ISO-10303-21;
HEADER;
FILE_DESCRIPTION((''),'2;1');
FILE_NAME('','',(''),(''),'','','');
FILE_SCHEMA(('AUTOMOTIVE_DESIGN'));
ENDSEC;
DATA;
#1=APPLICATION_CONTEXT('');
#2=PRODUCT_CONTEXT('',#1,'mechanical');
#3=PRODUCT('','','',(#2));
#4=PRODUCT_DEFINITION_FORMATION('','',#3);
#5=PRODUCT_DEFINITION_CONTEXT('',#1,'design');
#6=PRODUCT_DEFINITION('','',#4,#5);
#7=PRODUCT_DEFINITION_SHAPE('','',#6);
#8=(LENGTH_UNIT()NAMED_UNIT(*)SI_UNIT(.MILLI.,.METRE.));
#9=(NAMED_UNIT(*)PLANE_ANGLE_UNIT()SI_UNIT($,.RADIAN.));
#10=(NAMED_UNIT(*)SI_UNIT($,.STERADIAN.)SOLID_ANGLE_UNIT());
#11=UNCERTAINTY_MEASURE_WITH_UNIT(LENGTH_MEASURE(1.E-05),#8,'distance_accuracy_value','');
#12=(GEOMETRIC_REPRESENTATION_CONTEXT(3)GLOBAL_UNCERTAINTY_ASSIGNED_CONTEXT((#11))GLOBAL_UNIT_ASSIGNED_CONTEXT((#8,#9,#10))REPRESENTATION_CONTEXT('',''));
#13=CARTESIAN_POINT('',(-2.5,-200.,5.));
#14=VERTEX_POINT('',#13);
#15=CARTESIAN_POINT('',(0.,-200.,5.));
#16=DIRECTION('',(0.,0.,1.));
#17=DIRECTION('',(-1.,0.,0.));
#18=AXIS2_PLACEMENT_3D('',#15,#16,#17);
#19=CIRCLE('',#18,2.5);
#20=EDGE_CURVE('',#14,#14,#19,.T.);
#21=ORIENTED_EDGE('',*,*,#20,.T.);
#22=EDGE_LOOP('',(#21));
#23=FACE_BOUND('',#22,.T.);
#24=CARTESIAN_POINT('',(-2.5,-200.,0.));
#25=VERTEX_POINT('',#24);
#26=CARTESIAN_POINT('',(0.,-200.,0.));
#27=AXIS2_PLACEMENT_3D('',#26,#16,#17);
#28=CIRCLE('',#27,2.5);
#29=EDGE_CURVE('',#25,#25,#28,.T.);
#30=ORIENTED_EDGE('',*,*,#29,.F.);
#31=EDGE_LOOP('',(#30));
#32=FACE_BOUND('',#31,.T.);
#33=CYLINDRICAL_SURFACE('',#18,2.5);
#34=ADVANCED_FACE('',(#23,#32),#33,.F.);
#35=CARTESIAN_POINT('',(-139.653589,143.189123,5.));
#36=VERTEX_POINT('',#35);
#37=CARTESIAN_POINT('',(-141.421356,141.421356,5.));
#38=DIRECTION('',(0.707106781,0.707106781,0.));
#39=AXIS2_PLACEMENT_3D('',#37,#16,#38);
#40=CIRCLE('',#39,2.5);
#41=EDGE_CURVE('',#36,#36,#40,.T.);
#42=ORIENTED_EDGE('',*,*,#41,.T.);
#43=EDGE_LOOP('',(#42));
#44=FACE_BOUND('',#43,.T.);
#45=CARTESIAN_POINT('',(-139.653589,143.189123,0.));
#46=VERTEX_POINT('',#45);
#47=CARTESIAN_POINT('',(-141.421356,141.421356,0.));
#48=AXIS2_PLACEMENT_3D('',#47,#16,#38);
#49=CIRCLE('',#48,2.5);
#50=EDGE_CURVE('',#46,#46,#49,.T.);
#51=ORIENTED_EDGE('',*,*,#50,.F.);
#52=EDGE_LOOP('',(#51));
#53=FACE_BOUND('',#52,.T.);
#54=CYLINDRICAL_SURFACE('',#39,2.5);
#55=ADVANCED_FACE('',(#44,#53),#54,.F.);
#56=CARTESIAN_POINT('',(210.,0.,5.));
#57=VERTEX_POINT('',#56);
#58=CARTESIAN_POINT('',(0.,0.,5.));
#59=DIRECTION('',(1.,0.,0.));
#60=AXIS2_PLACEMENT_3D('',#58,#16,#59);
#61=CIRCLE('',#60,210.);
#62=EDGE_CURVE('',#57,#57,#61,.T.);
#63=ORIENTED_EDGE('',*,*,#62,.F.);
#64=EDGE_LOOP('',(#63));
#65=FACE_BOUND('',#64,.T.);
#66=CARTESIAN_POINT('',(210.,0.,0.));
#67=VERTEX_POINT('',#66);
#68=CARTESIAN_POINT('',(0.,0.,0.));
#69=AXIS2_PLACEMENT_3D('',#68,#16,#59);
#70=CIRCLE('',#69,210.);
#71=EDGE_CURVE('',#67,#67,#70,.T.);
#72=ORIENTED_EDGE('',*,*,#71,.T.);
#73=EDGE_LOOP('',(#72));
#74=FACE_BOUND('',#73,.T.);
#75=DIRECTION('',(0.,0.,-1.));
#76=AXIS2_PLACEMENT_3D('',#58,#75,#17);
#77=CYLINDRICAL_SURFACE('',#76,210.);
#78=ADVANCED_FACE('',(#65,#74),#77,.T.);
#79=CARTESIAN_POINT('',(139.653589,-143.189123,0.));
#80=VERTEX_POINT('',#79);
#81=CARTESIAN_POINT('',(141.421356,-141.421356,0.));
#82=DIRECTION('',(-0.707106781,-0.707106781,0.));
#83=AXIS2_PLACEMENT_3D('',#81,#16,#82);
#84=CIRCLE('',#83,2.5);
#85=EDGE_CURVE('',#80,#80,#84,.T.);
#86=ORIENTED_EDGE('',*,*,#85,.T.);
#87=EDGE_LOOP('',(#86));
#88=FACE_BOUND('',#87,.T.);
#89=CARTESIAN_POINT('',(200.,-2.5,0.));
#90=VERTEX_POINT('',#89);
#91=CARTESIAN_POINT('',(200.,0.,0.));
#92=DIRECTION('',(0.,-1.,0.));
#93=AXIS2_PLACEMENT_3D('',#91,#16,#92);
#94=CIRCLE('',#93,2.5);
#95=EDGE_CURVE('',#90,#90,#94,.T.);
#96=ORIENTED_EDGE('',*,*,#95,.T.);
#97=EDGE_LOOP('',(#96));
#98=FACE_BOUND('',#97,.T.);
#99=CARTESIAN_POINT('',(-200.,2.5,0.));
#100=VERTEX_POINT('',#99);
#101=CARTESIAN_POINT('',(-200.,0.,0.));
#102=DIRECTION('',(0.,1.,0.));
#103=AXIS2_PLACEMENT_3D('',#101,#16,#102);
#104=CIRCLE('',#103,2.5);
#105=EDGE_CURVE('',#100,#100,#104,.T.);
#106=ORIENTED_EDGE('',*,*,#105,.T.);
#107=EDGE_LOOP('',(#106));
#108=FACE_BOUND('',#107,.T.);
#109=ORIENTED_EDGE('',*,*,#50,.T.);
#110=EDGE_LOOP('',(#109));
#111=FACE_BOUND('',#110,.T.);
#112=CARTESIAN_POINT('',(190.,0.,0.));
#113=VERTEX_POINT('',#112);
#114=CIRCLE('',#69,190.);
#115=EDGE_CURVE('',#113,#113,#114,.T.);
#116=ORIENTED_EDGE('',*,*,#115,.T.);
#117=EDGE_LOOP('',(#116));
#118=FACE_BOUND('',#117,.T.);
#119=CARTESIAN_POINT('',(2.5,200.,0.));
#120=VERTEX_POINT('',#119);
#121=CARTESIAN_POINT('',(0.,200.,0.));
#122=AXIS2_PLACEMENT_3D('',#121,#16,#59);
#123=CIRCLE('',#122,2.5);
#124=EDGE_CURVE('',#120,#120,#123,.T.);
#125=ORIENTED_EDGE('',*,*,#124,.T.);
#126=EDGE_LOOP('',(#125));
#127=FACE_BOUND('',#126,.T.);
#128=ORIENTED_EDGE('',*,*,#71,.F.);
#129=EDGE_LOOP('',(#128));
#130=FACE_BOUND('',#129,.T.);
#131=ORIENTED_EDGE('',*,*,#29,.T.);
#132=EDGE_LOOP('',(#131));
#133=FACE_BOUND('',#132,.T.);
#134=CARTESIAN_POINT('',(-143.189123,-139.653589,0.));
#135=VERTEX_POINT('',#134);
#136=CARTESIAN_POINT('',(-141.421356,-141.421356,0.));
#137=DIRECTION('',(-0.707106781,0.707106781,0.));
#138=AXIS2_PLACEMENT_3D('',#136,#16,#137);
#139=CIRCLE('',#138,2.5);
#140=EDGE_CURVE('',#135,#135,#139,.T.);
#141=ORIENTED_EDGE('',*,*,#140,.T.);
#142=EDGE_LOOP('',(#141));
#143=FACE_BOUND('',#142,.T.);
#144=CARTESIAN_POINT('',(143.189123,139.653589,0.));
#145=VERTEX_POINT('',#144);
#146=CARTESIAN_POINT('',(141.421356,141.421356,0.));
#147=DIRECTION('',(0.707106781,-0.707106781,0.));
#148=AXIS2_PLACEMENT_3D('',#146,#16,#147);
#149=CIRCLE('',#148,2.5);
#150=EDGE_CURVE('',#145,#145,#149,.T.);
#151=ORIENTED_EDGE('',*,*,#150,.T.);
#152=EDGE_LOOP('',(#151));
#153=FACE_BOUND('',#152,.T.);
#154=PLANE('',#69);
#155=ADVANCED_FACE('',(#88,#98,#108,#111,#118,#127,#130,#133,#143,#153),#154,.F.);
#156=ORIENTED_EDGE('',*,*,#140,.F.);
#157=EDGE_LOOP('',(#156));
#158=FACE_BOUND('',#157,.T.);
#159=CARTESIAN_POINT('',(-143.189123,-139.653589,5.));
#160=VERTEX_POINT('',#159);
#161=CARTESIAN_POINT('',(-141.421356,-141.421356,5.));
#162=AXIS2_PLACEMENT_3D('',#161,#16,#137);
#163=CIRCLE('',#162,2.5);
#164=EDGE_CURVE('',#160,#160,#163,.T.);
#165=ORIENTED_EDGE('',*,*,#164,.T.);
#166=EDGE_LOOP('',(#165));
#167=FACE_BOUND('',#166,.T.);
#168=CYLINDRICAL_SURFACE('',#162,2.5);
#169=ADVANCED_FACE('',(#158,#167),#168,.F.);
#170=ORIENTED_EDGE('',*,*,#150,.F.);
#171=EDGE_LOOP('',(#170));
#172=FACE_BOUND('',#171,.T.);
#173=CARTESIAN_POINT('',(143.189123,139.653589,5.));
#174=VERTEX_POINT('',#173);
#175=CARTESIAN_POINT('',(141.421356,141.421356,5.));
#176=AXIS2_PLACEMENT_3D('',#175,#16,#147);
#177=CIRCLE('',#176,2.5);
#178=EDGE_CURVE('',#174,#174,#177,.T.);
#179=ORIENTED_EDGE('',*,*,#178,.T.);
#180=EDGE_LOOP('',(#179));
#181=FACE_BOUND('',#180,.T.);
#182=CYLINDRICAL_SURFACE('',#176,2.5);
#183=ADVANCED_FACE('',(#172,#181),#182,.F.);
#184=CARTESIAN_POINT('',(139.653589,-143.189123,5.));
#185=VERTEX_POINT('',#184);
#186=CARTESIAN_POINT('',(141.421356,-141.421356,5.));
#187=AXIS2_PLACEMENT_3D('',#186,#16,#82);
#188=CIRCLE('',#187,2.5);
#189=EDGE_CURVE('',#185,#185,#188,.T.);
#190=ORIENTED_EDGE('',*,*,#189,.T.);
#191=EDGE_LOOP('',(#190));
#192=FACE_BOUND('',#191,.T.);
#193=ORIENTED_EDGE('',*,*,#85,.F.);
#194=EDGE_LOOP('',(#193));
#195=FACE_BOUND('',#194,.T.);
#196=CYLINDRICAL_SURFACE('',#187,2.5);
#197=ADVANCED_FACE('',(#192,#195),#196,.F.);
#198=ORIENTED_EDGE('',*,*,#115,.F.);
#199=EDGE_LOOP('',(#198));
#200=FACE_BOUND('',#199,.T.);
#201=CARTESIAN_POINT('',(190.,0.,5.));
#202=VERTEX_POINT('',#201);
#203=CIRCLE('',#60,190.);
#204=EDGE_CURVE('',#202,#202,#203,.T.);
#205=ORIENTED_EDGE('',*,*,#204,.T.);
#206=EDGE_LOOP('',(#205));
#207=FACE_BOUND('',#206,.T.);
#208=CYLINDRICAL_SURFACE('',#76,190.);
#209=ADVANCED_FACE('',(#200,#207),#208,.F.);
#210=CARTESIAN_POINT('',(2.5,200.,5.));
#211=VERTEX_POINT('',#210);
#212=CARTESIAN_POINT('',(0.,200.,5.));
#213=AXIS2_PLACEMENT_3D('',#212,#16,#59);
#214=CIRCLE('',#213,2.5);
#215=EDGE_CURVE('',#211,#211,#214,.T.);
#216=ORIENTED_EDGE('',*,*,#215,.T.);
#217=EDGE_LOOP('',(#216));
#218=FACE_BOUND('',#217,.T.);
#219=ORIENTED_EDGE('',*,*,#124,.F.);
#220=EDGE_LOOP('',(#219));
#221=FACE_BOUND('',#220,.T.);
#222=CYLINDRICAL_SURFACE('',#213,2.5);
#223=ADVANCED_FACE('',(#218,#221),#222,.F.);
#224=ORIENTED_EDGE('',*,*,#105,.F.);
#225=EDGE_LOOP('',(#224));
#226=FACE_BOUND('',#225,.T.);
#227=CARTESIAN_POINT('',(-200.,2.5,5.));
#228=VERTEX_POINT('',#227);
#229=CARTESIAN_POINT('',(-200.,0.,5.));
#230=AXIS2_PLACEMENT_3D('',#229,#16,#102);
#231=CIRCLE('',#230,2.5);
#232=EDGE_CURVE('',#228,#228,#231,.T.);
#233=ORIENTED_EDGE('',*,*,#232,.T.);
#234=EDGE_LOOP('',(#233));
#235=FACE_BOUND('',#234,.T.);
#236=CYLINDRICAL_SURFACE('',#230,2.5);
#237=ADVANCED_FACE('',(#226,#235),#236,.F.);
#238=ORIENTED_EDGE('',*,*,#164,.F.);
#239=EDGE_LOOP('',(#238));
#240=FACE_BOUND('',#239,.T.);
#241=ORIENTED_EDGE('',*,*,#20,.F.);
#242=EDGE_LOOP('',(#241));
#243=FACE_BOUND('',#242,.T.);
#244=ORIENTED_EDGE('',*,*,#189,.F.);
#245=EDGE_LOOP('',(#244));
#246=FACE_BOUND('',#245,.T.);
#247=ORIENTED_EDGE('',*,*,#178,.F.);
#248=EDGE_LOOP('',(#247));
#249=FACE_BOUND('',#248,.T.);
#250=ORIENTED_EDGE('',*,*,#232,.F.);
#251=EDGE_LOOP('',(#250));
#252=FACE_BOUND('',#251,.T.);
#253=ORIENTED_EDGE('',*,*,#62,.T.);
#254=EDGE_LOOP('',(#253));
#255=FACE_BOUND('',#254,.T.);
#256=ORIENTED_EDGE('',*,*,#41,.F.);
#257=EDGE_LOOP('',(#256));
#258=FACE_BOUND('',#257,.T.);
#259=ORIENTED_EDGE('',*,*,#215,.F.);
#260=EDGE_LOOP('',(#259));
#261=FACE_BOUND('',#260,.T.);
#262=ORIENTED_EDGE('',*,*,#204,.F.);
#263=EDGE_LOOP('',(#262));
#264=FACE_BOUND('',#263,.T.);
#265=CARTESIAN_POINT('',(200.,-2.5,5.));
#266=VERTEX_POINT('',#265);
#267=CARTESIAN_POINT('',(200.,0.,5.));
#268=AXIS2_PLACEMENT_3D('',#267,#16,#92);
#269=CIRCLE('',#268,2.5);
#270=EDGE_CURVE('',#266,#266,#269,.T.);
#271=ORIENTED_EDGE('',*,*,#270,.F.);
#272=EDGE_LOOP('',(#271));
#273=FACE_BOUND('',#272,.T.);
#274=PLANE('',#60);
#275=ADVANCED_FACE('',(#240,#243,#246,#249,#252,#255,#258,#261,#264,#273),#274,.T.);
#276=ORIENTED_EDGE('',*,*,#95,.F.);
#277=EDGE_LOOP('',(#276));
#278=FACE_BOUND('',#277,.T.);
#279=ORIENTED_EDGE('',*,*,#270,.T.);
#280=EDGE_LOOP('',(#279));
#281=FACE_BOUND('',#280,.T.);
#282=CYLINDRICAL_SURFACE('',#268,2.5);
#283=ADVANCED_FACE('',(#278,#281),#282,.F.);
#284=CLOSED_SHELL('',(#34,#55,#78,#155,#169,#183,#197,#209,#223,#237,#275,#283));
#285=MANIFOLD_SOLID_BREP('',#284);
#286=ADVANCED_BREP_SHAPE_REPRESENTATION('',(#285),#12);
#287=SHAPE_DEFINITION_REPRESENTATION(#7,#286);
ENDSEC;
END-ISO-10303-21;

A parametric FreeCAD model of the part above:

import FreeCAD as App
import Part
import Sketcher
from FreeCAD import Vector
Q = App.Units.Quantity

doc = App.newDocument("Part")
body = doc.addObject("PartDesign::Body", "Body")

sketch1 = body.newObject("Sketcher::SketchObject", "Sketch")
sketch1.AttachmentSupport = (doc.getObject("XY_Plane"), [""])
sketch1.MapMode = "FlatFace"
sketch1.addGeometry([
    Part.Circle(Vector(0, 0, 0), Vector(0, 0, 1), 210),
    Part.Circle(Vector(0, 0, 0), Vector(0, 0, 1), 190),
], False)
sketch1.addConstraint([
    Sketcher.Constraint("Coincident", 0, 3, -1, 1),
    Sketcher.Constraint("Coincident", 1, 3, -1, 1),
    Sketcher.Constraint("Diameter", 0, Q("420 mm")),
    Sketcher.Constraint("Diameter", 1, Q("380 mm")),
])
pad1 = body.newObject("PartDesign::Pad", "Pad")
pad1.Profile = sketch1
pad1.Length = 5

sketch2 = body.newObject("Sketcher::SketchObject", "Sketch001")
sketch2.AttachmentSupport = (doc.getObject("XY_Plane"), [""])
sketch2.MapMode = "FlatFace"
sketch2.AttachmentOffset = App.Placement(Vector(0, 0, 5), App.Rotation())
sketch2.addGeometry(Part.Circle(Vector(0, 200, 0), Vector(0, 0, 1), 2.5), False)
sketch2.addConstraint([
    Sketcher.Constraint("PointOnObject", 0, 3, -2),
    Sketcher.Constraint("Diameter", 0, Q("5 mm")),
    Sketcher.Constraint("DistanceY", -1, 1, 0, 3, Q("200 mm")),
])
doc.recompute()
hole = body.newObject("PartDesign::Hole", "Hole")
hole.Profile = sketch2
hole.ThreadType = "None"
hole.Diameter = 5
hole.DepthType = "ThroughAll"
doc.recompute()

polarpattern = body.newObject("PartDesign::PolarPattern", "PolarPattern")
polarpattern.Originals = [hole]
polarpattern.Axis = (doc.getObject("Z_Axis"), [""])
polarpattern.Angle = 360
polarpattern.Occurrences = 8
body.Tip = polarpattern

doc.recompute()
